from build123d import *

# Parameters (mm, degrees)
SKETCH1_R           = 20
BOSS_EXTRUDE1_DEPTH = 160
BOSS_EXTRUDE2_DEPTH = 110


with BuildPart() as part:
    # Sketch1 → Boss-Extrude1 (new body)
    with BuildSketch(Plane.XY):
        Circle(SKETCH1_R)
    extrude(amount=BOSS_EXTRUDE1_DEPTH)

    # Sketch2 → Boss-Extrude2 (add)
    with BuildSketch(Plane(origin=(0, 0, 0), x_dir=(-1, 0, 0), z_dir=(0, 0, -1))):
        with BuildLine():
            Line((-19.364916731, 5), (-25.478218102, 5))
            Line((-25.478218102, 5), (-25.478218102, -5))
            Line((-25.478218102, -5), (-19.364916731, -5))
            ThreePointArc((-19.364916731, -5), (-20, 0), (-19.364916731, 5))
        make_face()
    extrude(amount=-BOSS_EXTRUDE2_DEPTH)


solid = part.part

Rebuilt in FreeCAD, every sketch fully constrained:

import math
import FreeCAD as App
import Part
import Sketcher

V = App.Vector

doc = App.newDocument("Part")
body = doc.addObject("PartDesign::Body", "Body")

# Sketch on XY plane
sketch1 = body.newObject("Sketcher::SketchObject", "Sketch")
sketch1.AttachmentSupport = (doc.getObject("XY_Plane"), [""])
sketch1.MapMode = "FlatFace"
sketch1.addGeometry(Part.Circle(V(0, 0, 0), V(0, 0, 1), 20), False)
sketch1.addConstraint(Sketcher.Constraint("Coincident", 0, 3, -1, 1))
sketch1.addConstraint(Sketcher.Constraint("Diameter", 0, 40.0))
pad1 = body.newObject("PartDesign::Pad", "Pad")
pad1.Profile = sketch1
pad1.Length = 160

# Sketch on XY plane
sketch2 = body.newObject("Sketcher::SketchObject", "Sketch001")
sketch2.AttachmentSupport = (doc.getObject("XY_Plane"), [""])
sketch2.MapMode = "FlatFace"
sketch2.addGeometry(Part.LineSegment(V(19, 5, 0), V(25, 5, 0)), False)
sketch2.addGeometry(Part.LineSegment(V(25, 5, 0), V(25, -5, 0)), False)
sketch2.addGeometry(Part.LineSegment(V(25, -5, 0), V(19, -5, 0)), False)
sketch2.addGeometry(Part.ArcOfCircle(Part.Circle(V(0, 0, 0), V(0, 0, 1), 20), math.radians(-14), math.radians(14)), False)
sketch2.addConstraint(Sketcher.Constraint("Coincident", 0, 2, 1, 1))
sketch2.addConstraint(Sketcher.Constraint("Coincident", 1, 2, 2, 1))
sketch2.addConstraint(Sketcher.Constraint("Coincident", 2, 2, 3, 1))
sketch2.addConstraint(Sketcher.Constraint("Coincident", 3, 2, 0, 1))
sketch2.addConstraint(Sketcher.Constraint("Horizontal", 0))
sketch2.addConstraint(Sketcher.Constraint("Vertical", 1))
sketch2.addConstraint(Sketcher.Constraint("Horizontal", 2))
sketch2.addConstraint(Sketcher.Constraint("Coincident", 3, 3, -1, 1))
sketch2.addConstraint(Sketcher.Constraint("Vertical", 2, 2, 3, 2))
sketch2.addConstraint(Sketcher.Constraint("Radius", 3, 20.0))
sketch2.addConstraint(Sketcher.Constraint("DistanceY", 1, 2, 1, 1, 10.0))
sketch2.addConstraint(Sketcher.Constraint("DistanceX", 0, 1, 0, 2, 6.113301))
pad2 = body.newObject("PartDesign::Pad", "Pad001")
pad2.Profile = sketch2
pad2.Length = 110

doc.recompute()
